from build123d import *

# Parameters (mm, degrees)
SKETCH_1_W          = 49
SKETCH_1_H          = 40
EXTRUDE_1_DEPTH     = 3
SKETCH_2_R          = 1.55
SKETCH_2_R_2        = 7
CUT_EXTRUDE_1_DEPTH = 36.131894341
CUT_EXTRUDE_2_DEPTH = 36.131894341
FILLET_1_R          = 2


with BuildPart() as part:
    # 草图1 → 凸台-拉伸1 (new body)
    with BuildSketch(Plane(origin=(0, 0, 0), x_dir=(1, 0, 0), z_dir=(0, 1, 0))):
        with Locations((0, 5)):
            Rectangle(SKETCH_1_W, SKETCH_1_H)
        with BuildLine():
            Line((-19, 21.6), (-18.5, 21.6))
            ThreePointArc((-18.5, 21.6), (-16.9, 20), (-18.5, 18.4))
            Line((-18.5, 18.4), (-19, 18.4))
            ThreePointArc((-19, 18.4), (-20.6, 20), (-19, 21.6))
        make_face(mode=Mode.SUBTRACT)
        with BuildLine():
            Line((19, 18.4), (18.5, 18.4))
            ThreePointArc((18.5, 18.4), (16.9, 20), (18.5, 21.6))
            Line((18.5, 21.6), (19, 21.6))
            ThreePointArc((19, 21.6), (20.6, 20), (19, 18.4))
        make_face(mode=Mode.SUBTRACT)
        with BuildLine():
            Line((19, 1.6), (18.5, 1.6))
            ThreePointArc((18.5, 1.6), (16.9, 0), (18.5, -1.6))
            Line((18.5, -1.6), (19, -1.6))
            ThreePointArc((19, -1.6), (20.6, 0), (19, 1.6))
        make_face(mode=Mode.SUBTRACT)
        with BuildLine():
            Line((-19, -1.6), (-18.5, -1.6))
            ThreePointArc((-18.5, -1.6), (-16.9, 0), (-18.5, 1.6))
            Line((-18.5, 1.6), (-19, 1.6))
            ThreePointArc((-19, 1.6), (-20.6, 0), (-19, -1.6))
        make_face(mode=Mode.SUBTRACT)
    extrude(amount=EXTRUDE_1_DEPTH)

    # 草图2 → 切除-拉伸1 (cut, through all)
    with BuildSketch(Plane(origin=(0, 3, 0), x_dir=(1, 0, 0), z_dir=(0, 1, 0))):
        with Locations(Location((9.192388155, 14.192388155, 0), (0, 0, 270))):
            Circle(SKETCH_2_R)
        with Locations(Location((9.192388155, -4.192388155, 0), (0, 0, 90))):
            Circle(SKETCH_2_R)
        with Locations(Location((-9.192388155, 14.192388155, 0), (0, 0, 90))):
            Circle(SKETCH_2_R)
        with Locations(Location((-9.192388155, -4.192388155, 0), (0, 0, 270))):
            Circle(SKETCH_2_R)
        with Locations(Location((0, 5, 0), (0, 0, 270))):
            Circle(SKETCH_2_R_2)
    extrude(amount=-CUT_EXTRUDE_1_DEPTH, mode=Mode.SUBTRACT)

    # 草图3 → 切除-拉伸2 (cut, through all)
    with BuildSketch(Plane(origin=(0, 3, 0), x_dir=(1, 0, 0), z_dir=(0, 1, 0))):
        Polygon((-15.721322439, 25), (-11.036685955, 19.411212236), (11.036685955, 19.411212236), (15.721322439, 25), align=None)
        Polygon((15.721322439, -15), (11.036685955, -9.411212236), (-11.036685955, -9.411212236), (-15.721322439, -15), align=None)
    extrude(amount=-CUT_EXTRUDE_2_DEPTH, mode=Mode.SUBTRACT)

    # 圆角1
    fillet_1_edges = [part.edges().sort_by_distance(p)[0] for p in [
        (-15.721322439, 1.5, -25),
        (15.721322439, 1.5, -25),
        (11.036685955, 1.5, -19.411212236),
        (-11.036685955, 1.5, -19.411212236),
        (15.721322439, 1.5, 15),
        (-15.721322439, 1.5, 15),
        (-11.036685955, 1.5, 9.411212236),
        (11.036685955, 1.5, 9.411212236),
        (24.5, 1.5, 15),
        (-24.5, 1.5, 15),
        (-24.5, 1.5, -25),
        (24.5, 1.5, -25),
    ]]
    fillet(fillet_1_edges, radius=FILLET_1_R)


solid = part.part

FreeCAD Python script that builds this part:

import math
import FreeCAD as App
import Part
import Sketcher


def edges_at(feature, points):
    """Names of the edges that pass closest to the given points."""
    edges = feature.Shape.Edges
    near = lambda p: min(range(len(edges)), key=lambda i: edges[i].distToShape(Part.Vertex(*p))[0])
    return sorted({f"Edge{near(p) + 1}" for p in points})

doc = App.newDocument("Part")
params = doc.addObject("Spreadsheet::Sheet", "Params")
for row, (alias, value) in enumerate([
    ("sketch1_radius", "1.6 mm"),
    ("sketch1_width", "49 mm"),
    ("sketch1_height", "40 mm"),
    ("sketch1_width2", "0.5 mm"),
    ("pad1_length", "3 mm"),
    ("sketch2_diameter", "14 mm"),
    ("sketch2_diameter2", "3.1 mm"),
    ("fillet_radius", "2 mm"),
], start=1):
    params.set(f"A{row}", alias)
    params.set(f"B{row}", "=" + value)
    params.setAlias(f"B{row}", alias)

body = doc.addObject("PartDesign::Body", "Body")

sketch1 = body.newObject("Sketcher::SketchObject", "Sketch")
sketch1.AttachmentSupport = (doc.getObject("XZ_Plane"), [""])
sketch1.MapMode = "FlatFace"
sketch1.addGeometry([
    Part.LineSegment(App.Vector(-24.5, -25, 0), App.Vector(-24.5, 15, 0)),
    Part.LineSegment(App.Vector(-24.5, 15, 0), App.Vector(24.5, 15, 0)),
    Part.LineSegment(App.Vector(24.5, 15, 0), App.Vector(24.5, -25, 0)),
    Part.LineSegment(App.Vector(24.5, -25, 0), App.Vector(-24.5, -25, 0)),
    Part.LineSegment(App.Vector(-18.5, 1.6, 0), App.Vector(-19, 1.6, 0)),
    Part.ArcOfCircle(Part.Circle(App.Vector(-19, 0, 0), App.Vector(0, 0, 1), 1.6), math.radians(90), math.radians(270)),
    Part.LineSegment(App.Vector(-19, -1.6, 0), App.Vector(-18.5, -1.6, 0)),
    Part.ArcOfCircle(Part.Circle(App.Vector(-18.5, 0, 0), App.Vector(0, 0, 1), 1.6), math.radians(-90), math.radians(90)),
    Part.LineSegment(App.Vector(18.5, -1.6, 0), App.Vector(19, -1.6, 0)),
    Part.ArcOfCircle(Part.Circle(App.Vector(19, 0, 0), App.Vector(0, 0, 1), 1.6), math.radians(-90), math.radians(90)),
    Part.LineSegment(App.Vector(19, 1.6, 0), App.Vector(18.5, 1.6, 0)),
    Part.ArcOfCircle(Part.Circle(App.Vector(18.5, 0, 0), App.Vector(0, 0, 1), 1.6), math.radians(90), math.radians(270)),
    Part.ArcOfCircle(Part.Circle(App.Vector(-19, -20, 0), App.Vector(0, 0, 1), 1.6), math.radians(90), math.radians(270)),
    Part.LineSegment(App.Vector(-19, -21.6, 0), App.Vector(-18.5, -21.6, 0)),
    Part.ArcOfCircle(Part.Circle(App.Vector(-18.5, -20, 0), App.Vector(0, 0, 1), 1.6), math.radians(-90), math.radians(90)),
    Part.LineSegment(App.Vector(-18.5, -18.4, 0), App.Vector(-19, -18.4, 0)),
    Part.ArcOfCircle(Part.Circle(App.Vector(19, -20, 0), App.Vector(0, 0, 1), 1.6), math.radians(-90), math.radians(90)),
    Part.LineSegment(App.Vector(19, -18.4, 0), App.Vector(18.5, -18.4, 0)),
    Part.ArcOfCircle(Part.Circle(App.Vector(18.5, -20, 0), App.Vector(0, 0, 1), 1.6), math.radians(90), math.radians(270)),
    Part.LineSegment(App.Vector(18.5, -21.6, 0), App.Vector(19, -21.6, 0)),
], False)
sketch1.addConstraint([
    Sketcher.Constraint("Coincident", 0, 2, 1, 1),
    Sketcher.Constraint("Coincident", 1, 2, 2, 1),
    Sketcher.Constraint("Coincident", 2, 2, 3, 1),
    Sketcher.Constraint("Coincident", 3, 2, 0, 1),
    Sketcher.Constraint("Tangent", 4, 2, 5, 1),
    Sketcher.Constraint("Tangent", 5, 2, 6, 1),
    Sketcher.Constraint("Tangent", 6, 2, 7, 1),
    Sketcher.Constraint("Tangent", 7, 2, 4, 1),
    Sketcher.Constraint("Tangent", 8, 2, 9, 1),
    Sketcher.Constraint("Tangent", 9, 2, 10, 1),
    Sketcher.Constraint("Tangent", 10, 2, 11, 1),
    Sketcher.Constraint("Tangent", 11, 2, 8, 1),
    Sketcher.Constraint("Tangent", 12, 2, 13, 1),
    Sketcher.Constraint("Tangent", 13, 2, 14, 1),
    Sketcher.Constraint("Tangent", 14, 2, 15, 1),
    Sketcher.Constraint("Tangent", 15, 2, 12, 1),
    Sketcher.Constraint("Tangent", 16, 2, 17, 1),
    Sketcher.Constraint("Tangent", 17, 2, 18, 1),
    Sketcher.Constraint("Tangent", 18, 2, 19, 1),
    Sketcher.Constraint("Tangent", 19, 2, 16, 1),
    Sketcher.Constraint("Vertical", 0),
    Sketcher.Constraint("Horizontal", 1),
    Sketcher.Constraint("Vertical", 2),
    Sketcher.Constraint("Horizontal", 3),
    Sketcher.Constraint("Horizontal", 4),
    Sketcher.Constraint("Horizontal", 6),
    Sketcher.Constraint("Horizontal", 8),
    Sketcher.Constraint("Horizontal", 10),
    Sketcher.Constraint("Horizontal", 13),
    Sketcher.Constraint("Horizontal", 15),
    Sketcher.Constraint("Horizontal", 17),
    Sketcher.Constraint("Horizontal", 19),
    Sketcher.Constraint("Equal", 7, 9),
    Sketcher.Constraint("Equal", 11, 12),
    Sketcher.Constraint("Equal", 14, 16),
    Sketcher.Constraint("Symmetric", 5, 3, 9, 3, -1, 1),
    Sketcher.Constraint("Symmetric", 7, 3, 11, 3, -2),
    Sketcher.Constraint("Symmetric", 12, 3, 16, 3, -2),
    Sketcher.Constraint("Vertical", 5, 3, 12, 3),
    Sketcher.Constraint("Vertical", 7, 3, 14, 3),
    Sketcher.Constraint("Vertical", 11, 3, 18, 3),
    Sketcher.Constraint("Radius", 5, 1.6),
    Sketcher.Constraint("DistanceX", 1, 1, 1, 2, 49.0),
    Sketcher.Constraint("DistanceY", 0, 1, 0, 2, 40.0),
    Sketcher.Constraint("DistanceX", 4, 2, 4, 1, 0.5),
    Sketcher.Constraint("DistanceX", 5, 3, -1, 1, 19.0),
    Sketcher.Constraint("DistanceY", 12, 3, -1, 1, 20.0),
    Sketcher.Constraint("DistanceY", -1, 1, 0, 2, 15.0),
    Sketcher.Constraint("DistanceX", 0, 2, 7, 3, 6.0),
])
sketch1.setExpression("Constraints[41]", "Params.sketch1_radius")
sketch1.setExpression("Constraints[42]", "Params.sketch1_width")
sketch1.setExpression("Constraints[43]", "Params.sketch1_height")
sketch1.setExpression("Constraints[44]", "Params.sketch1_width2")
pad1 = body.newObject("PartDesign::Pad", "Pad")
pad1.Profile = sketch1
pad1.setExpression("Length", "Params.pad1_length")
pad1.Reversed = True

sketch2 = body.newObject("Sketcher::SketchObject", "Sketch001")
sketch2.AttachmentSupport = (doc.getObject("XZ_Plane"), [""])
sketch2.MapMode = "FlatFace"
sketch2.AttachmentOffset = App.Placement(App.Vector(0, 0, -3), App.Rotation())
sketch2.addGeometry([
    Part.Circle(App.Vector(9.2, -14.2, 0), App.Vector(0, 0, 1), 1.6),
    Part.Circle(App.Vector(9.2, 4.2, 0), App.Vector(0, 0, 1), 1.6),
    Part.Circle(App.Vector(-9.2, -14.2, 0), App.Vector(0, 0, 1), 1.6),
    Part.Circle(App.Vector(-9.2, 4.2, 0), App.Vector(0, 0, 1), 1.6),
    Part.Circle(App.Vector(0, -5, 0), App.Vector(0, 0, 1), 7),
], False)
sketch2.addConstraint([
    Sketcher.Constraint("Equal", 0, 1),
    Sketcher.Constraint("Equal", 1, 2),
    Sketcher.Constraint("Equal", 2, 3),
    Sketcher.Constraint("Symmetric", 0, 3, 2, 3, -2),
    Sketcher.Constraint("Symmetric", 1, 3, 3, 3, -2),
    Sketcher.Constraint("PointOnObject", 4, 3, -2),
    Sketcher.Constraint("Vertical", 0, 3, 1, 3),
    Sketcher.Constraint("Diameter", 4, 14.0),
    Sketcher.Constraint("Diameter", 0, 3.1),
    Sketcher.Constraint("DistanceY", 4, 3, -1, 1, 5.0),
    Sketcher.Constraint("DistanceX", -1, 1, 0, 3, 9.192388),
    Sketcher.Constraint("DistanceY", 0, 3, -1, 1, 14.192388),
    Sketcher.Constraint("DistanceY", -1, 1, 1, 3, 4.192388),
])
sketch2.setExpression("Constraints[7]", "Params.sketch2_diameter")
sketch2.setExpression("Constraints[8]", "Params.sketch2_diameter2")
pocket1 = body.newObject("PartDesign::Pocket", "Pocket")
pocket1.Profile = sketch2
pocket1.Type = "ThroughAll"
pocket1.Reversed = True

sketch3 = body.newObject("Sketcher::SketchObject", "Sketch002")
sketch3.AttachmentSupport = (doc.getObject("XZ_Plane"), [""])
sketch3.MapMode = "FlatFace"
sketch3.AttachmentOffset = App.Placement(App.Vector(0, 0, -3), App.Rotation())
sketch3.addGeometry([
    Part.LineSegment(App.Vector(-16, -25, 0), App.Vector(-11, -19, 0)),
    Part.LineSegment(App.Vector(-11, -19, 0), App.Vector(11, -19, 0)),
    Part.LineSegment(App.Vector(11, -19, 0), App.Vector(16, -25, 0)),
    Part.LineSegment(App.Vector(16, -25, 0), App.Vector(-16, -25, 0)),
    Part.LineSegment(App.Vector(16, 15, 0), App.Vector(11, 9, 0)),
    Part.LineSegment(App.Vector(11, 9, 0), App.Vector(-11, 9, 0)),
    Part.LineSegment(App.Vector(-11, 9, 0), App.Vector(-16, 15, 0)),
    Part.LineSegment(App.Vector(-16, 15, 0), App.Vector(16, 15, 0)),
], False)
sketch3.addConstraint([
    Sketcher.Constraint("Coincident", 0, 2, 1, 1),
    Sketcher.Constraint("Coincident", 1, 2, 2, 1),
    Sketcher.Constraint("Coincident", 2, 2, 3, 1),
    Sketcher.Constraint("Coincident", 3, 2, 0, 1),
    Sketcher.Constraint("Coincident", 4, 2, 5, 1),
    Sketcher.Constraint("Coincident", 5, 2, 6, 1),
    Sketcher.Constraint("Coincident", 6, 2, 7, 1),
    Sketcher.Constraint("Coincident", 7, 2, 4, 1),
    Sketcher.Constraint("Horizontal", 1),
    Sketcher.Constraint("Horizontal", 3),
    Sketcher.Constraint("Horizontal", 5),
    Sketcher.Constraint("Horizontal", 7),
    Sketcher.Constraint("Parallel", 0, 4),
    Sketcher.Constraint("Parallel", 2, 6),
    Sketcher.Constraint("Vertical", 1, 2, 4, 2),
    Sketcher.Constraint("Vertical", 0, 2, 5, 2),
    Sketcher.Constraint("Vertical", 3, 2, 6, 2),
    Sketcher.Constraint("Vertical", 2, 2, 7, 2),
    Sketcher.Constraint("DistanceY", 2, 2, -1, 1, 25.0),
    Sketcher.Constraint("DistanceY", -1, 1, 6, 2, 15.0),
    Sketcher.Constraint("DistanceX", 1, 1, 1, 2, 22.073372),
    Sketcher.Constraint("DistanceX", 3, 2, 3, 1, 31.442645),
    Sketcher.Constraint("Distance", 0, 7.292487),
    Sketcher.Constraint("DistanceX", 0, 2, -1, 1, 11.036686),
])
pocket2 = body.newObject("PartDesign::Pocket", "Pocket001")
pocket2.Profile = sketch3
pocket2.Type = "ThroughAll"
pocket2.Reversed = True
doc.recompute()

fillet = body.newObject("PartDesign::Fillet", "Fillet")
fillet.Base = (pocket2, edges_at(pocket2, [
    (-15.721, 1.5, -25),
    (15.721, 1.5, -25),
    (11.037, 1.5, -19.411),
    (-11.037, 1.5, -19.411),
    (15.721, 1.5, 15),
    (-15.721, 1.5, 15),
    (-11.037, 1.5, 9.411),
    (11.037, 1.5, 9.411),
    (24.5, 1.5, 15),
    (-24.5, 1.5, 15),
    (-24.5, 1.5, -25),
    (24.5, 1.5, -25),
]))
fillet.setExpression("Radius", "Params.fillet_radius")

doc.recompute()
